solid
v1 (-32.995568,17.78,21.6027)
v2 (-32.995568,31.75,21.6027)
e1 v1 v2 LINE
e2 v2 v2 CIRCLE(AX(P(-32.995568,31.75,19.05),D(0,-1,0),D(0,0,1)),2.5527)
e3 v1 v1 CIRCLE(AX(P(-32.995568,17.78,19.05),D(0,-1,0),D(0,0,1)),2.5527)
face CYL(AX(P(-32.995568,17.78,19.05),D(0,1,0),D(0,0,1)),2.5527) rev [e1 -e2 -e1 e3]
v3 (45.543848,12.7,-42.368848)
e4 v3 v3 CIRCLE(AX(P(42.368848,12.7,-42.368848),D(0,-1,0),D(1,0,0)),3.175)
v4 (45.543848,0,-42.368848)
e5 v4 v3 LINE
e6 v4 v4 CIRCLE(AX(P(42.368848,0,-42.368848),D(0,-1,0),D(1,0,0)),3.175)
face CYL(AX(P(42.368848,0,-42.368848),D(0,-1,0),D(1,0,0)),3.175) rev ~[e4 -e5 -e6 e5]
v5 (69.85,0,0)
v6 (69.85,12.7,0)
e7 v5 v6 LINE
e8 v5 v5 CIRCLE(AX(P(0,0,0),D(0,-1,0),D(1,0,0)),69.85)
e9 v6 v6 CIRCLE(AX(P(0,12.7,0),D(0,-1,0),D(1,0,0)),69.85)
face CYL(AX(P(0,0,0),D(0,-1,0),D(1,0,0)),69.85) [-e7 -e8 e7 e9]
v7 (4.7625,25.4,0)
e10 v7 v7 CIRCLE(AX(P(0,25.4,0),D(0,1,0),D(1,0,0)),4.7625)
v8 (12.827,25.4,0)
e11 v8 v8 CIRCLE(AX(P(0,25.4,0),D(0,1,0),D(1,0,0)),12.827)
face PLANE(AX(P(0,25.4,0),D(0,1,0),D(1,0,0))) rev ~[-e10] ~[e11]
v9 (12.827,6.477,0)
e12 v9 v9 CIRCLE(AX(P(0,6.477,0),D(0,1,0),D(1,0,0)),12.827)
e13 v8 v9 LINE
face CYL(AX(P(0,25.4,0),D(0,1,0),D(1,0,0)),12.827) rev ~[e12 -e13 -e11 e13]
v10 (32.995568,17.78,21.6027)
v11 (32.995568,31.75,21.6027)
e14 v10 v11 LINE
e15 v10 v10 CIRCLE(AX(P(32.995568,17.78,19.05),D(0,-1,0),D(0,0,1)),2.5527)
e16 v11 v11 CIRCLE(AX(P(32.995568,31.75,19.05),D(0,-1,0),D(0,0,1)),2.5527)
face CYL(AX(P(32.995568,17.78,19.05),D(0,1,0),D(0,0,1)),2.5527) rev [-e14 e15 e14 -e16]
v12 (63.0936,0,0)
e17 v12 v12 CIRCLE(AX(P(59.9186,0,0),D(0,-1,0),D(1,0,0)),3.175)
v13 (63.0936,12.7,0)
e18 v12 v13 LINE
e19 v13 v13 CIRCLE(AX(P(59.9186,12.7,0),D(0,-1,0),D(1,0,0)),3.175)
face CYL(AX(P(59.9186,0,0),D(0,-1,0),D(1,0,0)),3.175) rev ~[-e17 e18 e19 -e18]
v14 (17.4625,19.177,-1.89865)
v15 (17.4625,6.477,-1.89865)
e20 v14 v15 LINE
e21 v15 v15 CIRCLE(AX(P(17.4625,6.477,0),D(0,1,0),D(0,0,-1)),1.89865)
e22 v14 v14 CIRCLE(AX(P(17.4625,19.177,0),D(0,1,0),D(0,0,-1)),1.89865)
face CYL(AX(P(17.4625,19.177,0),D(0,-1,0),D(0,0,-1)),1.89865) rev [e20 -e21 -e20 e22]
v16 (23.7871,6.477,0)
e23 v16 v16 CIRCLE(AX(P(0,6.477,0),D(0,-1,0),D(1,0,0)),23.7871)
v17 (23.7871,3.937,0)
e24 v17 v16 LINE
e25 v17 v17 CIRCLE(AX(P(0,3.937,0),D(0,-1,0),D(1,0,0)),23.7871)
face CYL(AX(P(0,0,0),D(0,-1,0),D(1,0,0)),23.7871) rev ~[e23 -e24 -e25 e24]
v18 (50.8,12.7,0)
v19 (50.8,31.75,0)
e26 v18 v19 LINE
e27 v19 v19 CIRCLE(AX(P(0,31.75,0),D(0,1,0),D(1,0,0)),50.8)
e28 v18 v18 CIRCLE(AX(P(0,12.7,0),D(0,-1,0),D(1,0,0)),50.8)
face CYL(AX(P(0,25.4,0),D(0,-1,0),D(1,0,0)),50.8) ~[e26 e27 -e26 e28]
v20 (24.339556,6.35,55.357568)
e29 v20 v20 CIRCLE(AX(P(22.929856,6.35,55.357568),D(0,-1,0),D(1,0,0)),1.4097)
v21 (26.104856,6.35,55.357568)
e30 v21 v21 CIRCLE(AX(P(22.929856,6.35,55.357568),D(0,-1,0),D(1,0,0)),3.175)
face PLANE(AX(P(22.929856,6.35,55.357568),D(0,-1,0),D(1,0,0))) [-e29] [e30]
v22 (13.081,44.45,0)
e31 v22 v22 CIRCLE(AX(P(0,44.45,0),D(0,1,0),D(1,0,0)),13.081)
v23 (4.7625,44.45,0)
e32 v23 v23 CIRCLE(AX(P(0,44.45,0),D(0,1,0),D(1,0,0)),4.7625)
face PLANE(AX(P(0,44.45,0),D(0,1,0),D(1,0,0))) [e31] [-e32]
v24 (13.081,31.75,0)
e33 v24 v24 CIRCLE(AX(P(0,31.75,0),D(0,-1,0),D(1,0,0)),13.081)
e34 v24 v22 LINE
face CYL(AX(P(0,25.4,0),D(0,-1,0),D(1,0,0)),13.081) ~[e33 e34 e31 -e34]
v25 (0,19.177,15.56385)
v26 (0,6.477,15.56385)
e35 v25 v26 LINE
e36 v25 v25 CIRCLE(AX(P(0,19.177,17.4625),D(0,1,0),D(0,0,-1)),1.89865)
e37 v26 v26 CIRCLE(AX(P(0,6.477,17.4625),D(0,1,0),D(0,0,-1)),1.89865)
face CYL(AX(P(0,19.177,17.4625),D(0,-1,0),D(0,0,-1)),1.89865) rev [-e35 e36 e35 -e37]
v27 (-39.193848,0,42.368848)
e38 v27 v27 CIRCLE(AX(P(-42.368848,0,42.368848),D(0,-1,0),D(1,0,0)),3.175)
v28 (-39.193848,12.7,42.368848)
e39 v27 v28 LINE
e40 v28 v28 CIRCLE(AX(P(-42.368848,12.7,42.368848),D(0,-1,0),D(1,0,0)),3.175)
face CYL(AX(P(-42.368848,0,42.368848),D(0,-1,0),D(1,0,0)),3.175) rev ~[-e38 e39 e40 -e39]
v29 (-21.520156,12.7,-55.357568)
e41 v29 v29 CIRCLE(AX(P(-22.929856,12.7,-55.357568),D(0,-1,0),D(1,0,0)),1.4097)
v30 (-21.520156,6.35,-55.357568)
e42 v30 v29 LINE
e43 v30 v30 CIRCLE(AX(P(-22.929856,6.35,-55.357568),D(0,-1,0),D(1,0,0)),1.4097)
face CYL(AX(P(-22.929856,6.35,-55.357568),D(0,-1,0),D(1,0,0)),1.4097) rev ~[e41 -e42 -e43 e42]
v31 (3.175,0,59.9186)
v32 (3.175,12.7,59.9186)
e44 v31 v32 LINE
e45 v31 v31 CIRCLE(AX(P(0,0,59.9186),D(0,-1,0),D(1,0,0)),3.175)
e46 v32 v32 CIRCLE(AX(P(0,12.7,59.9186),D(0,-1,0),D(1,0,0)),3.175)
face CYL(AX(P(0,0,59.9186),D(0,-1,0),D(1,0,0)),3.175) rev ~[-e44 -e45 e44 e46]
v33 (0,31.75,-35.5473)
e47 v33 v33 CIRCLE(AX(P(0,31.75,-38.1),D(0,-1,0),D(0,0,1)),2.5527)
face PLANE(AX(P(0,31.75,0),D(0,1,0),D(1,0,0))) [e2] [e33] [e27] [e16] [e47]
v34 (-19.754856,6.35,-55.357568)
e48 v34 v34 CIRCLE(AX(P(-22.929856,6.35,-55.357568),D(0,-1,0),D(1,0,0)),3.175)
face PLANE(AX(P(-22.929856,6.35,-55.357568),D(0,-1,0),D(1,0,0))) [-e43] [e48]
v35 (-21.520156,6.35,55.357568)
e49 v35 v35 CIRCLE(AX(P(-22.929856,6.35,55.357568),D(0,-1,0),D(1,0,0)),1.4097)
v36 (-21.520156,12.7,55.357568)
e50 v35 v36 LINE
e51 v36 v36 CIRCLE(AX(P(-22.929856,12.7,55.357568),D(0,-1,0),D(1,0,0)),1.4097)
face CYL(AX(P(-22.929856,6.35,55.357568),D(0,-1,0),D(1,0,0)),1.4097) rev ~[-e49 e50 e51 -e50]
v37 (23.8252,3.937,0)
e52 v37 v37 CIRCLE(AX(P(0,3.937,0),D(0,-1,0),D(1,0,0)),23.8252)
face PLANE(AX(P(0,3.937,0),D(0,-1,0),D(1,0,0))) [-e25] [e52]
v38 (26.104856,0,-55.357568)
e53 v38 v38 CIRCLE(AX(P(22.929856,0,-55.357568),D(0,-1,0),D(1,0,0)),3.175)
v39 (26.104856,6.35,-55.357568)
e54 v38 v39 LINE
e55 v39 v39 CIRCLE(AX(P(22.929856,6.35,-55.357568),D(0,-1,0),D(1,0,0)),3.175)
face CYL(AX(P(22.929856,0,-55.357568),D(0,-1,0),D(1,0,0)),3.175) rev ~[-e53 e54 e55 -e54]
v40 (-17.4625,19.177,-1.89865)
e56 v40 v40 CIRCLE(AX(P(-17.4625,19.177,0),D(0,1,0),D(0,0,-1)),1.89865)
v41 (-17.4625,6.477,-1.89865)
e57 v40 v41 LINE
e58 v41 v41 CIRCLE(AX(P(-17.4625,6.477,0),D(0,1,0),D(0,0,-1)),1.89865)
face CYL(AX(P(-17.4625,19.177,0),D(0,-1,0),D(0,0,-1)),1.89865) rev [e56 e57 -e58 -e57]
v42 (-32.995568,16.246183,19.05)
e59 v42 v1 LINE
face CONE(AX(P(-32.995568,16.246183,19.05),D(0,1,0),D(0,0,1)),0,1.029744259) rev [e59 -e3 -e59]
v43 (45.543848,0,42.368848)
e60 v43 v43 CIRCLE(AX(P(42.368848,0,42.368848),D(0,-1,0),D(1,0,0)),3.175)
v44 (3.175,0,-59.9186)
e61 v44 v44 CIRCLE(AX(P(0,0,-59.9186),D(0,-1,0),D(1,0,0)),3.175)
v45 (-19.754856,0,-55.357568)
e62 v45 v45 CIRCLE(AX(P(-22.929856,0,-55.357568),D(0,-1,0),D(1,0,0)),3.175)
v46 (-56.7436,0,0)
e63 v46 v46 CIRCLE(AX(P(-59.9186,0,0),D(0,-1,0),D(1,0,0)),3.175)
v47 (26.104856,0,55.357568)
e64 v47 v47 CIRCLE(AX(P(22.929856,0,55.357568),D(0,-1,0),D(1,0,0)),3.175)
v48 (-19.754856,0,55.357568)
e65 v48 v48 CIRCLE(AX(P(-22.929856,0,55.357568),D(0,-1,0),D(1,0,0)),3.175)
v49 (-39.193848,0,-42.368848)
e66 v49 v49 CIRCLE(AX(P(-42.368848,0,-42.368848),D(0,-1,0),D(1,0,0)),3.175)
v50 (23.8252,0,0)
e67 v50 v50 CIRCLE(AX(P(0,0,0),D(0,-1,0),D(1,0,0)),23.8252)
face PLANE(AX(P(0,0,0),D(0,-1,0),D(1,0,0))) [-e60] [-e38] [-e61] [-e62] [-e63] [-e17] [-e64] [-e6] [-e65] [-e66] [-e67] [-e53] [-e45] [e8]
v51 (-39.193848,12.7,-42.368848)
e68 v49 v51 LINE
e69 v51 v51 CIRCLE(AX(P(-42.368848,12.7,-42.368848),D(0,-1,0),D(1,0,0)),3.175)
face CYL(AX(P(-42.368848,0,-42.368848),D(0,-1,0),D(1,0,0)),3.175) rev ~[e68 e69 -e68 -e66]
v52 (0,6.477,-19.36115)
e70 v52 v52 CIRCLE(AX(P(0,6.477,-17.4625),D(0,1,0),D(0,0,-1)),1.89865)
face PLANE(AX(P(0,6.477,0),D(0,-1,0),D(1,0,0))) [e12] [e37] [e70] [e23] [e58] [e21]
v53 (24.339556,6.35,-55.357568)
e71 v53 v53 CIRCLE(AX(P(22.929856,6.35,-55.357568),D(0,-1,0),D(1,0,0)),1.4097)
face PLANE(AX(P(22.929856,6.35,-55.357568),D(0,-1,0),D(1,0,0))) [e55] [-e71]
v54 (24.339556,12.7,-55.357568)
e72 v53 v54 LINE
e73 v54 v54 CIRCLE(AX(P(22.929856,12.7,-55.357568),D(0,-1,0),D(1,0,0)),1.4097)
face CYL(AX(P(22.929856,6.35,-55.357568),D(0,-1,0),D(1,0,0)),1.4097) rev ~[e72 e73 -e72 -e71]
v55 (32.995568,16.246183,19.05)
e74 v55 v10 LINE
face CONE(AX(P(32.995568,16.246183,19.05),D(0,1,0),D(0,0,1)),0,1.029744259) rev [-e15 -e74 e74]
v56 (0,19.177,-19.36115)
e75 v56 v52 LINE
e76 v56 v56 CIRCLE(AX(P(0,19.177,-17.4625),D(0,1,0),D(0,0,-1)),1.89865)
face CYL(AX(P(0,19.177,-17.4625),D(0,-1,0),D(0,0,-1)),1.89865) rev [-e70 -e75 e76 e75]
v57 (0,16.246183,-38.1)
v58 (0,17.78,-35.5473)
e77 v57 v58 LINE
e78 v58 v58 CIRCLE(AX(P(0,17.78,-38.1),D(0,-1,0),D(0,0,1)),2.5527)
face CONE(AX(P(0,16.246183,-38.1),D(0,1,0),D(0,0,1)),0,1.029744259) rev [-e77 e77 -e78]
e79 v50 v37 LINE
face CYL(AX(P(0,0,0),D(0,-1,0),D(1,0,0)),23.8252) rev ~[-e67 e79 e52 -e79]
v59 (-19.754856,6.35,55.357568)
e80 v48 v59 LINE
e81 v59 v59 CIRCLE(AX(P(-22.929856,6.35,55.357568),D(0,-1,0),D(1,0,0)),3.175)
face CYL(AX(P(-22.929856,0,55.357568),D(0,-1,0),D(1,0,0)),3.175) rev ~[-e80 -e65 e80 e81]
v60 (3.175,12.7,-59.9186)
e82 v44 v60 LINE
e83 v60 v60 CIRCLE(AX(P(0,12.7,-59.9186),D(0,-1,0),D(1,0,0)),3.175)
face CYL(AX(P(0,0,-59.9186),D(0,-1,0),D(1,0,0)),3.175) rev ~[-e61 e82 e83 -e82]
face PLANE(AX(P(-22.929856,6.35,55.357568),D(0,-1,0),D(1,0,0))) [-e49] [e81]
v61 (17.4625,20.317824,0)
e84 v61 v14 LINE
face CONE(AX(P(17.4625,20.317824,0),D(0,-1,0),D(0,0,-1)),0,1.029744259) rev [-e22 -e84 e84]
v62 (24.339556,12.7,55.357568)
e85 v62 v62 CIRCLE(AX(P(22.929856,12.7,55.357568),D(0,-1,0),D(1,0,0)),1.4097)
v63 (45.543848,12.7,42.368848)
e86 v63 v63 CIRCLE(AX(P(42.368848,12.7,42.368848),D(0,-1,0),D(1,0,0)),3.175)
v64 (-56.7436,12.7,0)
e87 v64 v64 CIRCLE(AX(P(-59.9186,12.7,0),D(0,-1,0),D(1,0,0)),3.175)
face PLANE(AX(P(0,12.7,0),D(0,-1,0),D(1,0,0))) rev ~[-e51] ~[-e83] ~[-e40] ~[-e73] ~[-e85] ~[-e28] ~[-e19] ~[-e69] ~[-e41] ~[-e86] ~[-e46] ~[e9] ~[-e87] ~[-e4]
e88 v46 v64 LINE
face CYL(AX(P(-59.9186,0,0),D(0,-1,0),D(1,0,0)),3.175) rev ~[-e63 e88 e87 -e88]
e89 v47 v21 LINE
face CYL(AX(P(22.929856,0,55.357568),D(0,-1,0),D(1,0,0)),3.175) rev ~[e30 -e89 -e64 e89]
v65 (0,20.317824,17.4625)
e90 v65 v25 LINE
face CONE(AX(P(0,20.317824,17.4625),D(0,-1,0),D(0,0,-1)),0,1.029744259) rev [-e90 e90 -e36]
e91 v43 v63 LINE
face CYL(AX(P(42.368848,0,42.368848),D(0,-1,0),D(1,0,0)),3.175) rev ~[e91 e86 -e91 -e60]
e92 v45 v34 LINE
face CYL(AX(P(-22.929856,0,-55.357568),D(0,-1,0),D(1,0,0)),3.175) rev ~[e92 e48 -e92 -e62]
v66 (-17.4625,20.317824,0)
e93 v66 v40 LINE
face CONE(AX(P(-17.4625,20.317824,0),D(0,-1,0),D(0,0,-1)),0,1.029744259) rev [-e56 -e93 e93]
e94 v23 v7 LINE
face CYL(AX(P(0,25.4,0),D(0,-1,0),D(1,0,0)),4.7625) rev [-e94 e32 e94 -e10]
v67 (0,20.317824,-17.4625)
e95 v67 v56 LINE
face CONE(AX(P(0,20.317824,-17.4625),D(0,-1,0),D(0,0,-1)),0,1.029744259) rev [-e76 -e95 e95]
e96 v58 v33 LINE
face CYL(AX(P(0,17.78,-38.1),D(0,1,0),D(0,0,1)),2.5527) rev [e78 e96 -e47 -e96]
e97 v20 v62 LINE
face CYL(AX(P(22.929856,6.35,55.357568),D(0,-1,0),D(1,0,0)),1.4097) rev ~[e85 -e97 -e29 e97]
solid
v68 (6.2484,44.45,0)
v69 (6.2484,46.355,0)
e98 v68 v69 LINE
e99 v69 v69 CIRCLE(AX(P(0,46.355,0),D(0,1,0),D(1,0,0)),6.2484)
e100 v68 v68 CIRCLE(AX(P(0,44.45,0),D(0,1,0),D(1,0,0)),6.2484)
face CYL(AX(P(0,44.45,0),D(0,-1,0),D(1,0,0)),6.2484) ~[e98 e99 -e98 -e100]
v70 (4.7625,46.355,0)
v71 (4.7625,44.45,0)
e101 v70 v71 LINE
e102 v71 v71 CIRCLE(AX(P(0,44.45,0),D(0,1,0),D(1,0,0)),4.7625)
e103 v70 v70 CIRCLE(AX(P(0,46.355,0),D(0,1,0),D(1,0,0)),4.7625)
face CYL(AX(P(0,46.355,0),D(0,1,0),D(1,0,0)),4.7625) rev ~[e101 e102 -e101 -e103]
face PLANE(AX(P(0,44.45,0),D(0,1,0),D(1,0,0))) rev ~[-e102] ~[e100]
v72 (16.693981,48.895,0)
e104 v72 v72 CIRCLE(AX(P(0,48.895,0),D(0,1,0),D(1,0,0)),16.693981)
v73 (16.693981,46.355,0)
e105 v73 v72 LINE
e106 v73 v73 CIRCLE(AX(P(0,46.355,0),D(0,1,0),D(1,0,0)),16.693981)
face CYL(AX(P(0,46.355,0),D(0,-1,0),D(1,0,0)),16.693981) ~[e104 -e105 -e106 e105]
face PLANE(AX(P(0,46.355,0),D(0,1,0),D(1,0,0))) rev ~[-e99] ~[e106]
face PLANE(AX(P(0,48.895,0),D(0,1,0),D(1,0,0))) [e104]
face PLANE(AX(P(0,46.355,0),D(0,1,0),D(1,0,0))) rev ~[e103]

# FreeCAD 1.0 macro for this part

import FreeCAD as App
import Part
import Sketcher
from FreeCAD import Vector
Q = App.Units.Quantity

doc = App.newDocument("Part")
body = doc.addObject("PartDesign::Body", "Body")

# Sketch on XZ plane
sketch1 = doc.addObject("Sketcher::SketchObject", "Sketch")
body.addObject(sketch1)
sketch1.AttachmentSupport = (doc.XZ_Plane, [""])
sketch1.MapMode = "FlatFace"
sketch1.addGeometry(Part.Circle(Vector(0, 0, 0), Vector(0, 0, 1), 51), False)
sketch1.addConstraint(Sketcher.Constraint("Coincident", 0, 3, -1, 1))
sketch1.addConstraint(Sketcher.Constraint("Diameter", 0, Q("4 in")))
pad1 = doc.addObject("PartDesign::Pad", "Pad")
body.addObject(pad1)
pad1.Profile = sketch1
pad1.Length = Q("1 in")
pad1.Reversed = True

# Sketch on XZ plane
sketch2 = doc.addObject("Sketcher::SketchObject", "Sketch001")
body.addObject(sketch2)
sketch2.AttachmentSupport = (doc.XZ_Plane, [""])
sketch2.MapMode = "FlatFace"
sketch2.addGeometry(Part.Circle(Vector(0, 0, 0), Vector(0, 0, 1), 70), False)
sketch2.addGeometry(Part.Circle(Vector(0, 0, 0), Vector(0, 0, 1), 51), False)
sketch2.addConstraint(Sketcher.Constraint("Coincident", 0, 3, -1, 1))
sketch2.addConstraint(Sketcher.Constraint("Coincident", 1, 3, -1, 1))
sketch2.addConstraint(Sketcher.Constraint("Diameter", 1, Q("4 in")))
sketch2.addConstraint(Sketcher.Constraint("Diameter", 0, Q("5.5 in")))
pad2 = doc.addObject("PartDesign::Pad", "Pad001")
body.addObject(pad2)
pad2.Profile = sketch2
pad2.Length = Q("0.5 in")
pad2.Reversed = True

# Sketch on XZ plane
sketch3 = doc.addObject("Sketcher::SketchObject", "Sketch002")
body.addObject(sketch3)
sketch3.AttachmentSupport = (doc.XZ_Plane, [""])
sketch3.MapMode = "FlatFace"
sketch3.addGeometry(Part.Circle(Vector(0, -59.9, 0), Vector(0, 0, 1), 3.2), False)
sketch3.addConstraint(Sketcher.Constraint("PointOnObject", 0, 3, -2))
sketch3.addConstraint(Sketcher.Constraint("Diameter", 0, Q("0.25 in")))
sketch3.addConstraint(Sketcher.Constraint("DistanceY", 0, 3, -1, 1, Q("2.359 in")))
pocket1 = doc.addObject("PartDesign::Pocket", "Pocket")
body.addObject(pocket1)
pocket1.Profile = sketch3
pocket1.Type = "UpToFirst"

# Sketch on XZ plane
sketch4 = doc.addObject("Sketcher::SketchObject", "Sketch003")
body.addObject(sketch4)
sketch4.AttachmentSupport = (doc.XZ_Plane, [""])
sketch4.MapMode = "FlatFace"
sketch4.addGeometry(Part.Circle(Vector(-42.4, -42.4, 0), Vector(0, 0, 1), 3.2), False)
sketch4.addConstraint(Sketcher.Constraint("Diameter", 0, Q("0.25 in")))
sketch4.addConstraint(Sketcher.Constraint("DistanceX", 0, 3, -1, 1, 42.368848))
sketch4.addConstraint(Sketcher.Constraint("DistanceY", 0, 3, -1, 1, 42.368848))
pocket2 = doc.addObject("PartDesign::Pocket", "Pocket001")
body.addObject(pocket2)
pocket2.Profile = sketch4
pocket2.Type = "UpToFirst"

# Sketch on XZ plane
sketch5 = doc.addObject("Sketcher::SketchObject", "Sketch004")
body.addObject(sketch5)
sketch5.AttachmentSupport = (doc.XZ_Plane, [""])
sketch5.MapMode = "FlatFace"
sketch5.addGeometry(Part.Circle(Vector(-59.9, 0, 0), Vector(0, 0, 1), 3.2), False)
sketch5.addConstraint(Sketcher.Constraint("PointOnObject", 0, 3, -1))
sketch5.addConstraint(Sketcher.Constraint("Diameter", 0, Q("0.25 in")))
sketch5.addConstraint(Sketcher.Constraint("DistanceX", 0, 3, -1, 1, Q("2.359 in")))
pocket3 = doc.addObject("PartDesign::Pocket", "Pocket002")
body.addObject(pocket3)
pocket3.Profile = sketch5
pocket3.Type = "UpToFirst"

# Sketch on XZ plane
sketch6 = doc.addObject("Sketcher::SketchObject", "Sketch005")
body.addObject(sketch6)
sketch6.AttachmentSupport = (doc.XZ_Plane, [""])
sketch6.MapMode = "FlatFace"
sketch6.addGeometry(Part.Circle(Vector(-42.4, 42.4, 0), Vector(0, 0, 1), 3.2), False)
sketch6.addConstraint(Sketcher.Constraint("Diameter", 0, Q("0.25 in")))
sketch6.addConstraint(Sketcher.Constraint("DistanceX", 0, 3, -1, 1, 42.368848))
sketch6.addConstraint(Sketcher.Constraint("DistanceY", -1, 1, 0, 3, 42.368848))
pocket4 = doc.addObject("PartDesign::Pocket", "Pocket003")
body.addObject(pocket4)
pocket4.Profile = sketch6
pocket4.Type = "UpToFirst"

# Sketch on XZ plane
sketch7 = doc.addObject("Sketcher::SketchObject", "Sketch006")
body.addObject(sketch7)
sketch7.AttachmentSupport = (doc.XZ_Plane, [""])
sketch7.MapMode = "FlatFace"
sketch7.addGeometry(Part.Circle(Vector(0, 59.9, 0), Vector(0, 0, 1), 3.2), False)
sketch7.addConstraint(Sketcher.Constraint("PointOnObject", 0, 3, -2))
sketch7.addConstraint(Sketcher.Constraint("Diameter", 0, Q("0.25 in")))
sketch7.addConstraint(Sketcher.Constraint("DistanceY", -1, 1, 0, 3, Q("2.359 in")))
pocket5 = doc.addObject("PartDesign::Pocket", "Pocket004")
body.addObject(pocket5)
pocket5.Profile = sketch7
pocket5.Type = "UpToFirst"

# Sketch on XZ plane
sketch8 = doc.addObject("Sketcher::SketchObject", "Sketch007")
body.addObject(sketch8)
sketch8.AttachmentSupport = (doc.XZ_Plane, [""])
sketch8.MapMode = "FlatFace"
sketch8.addGeometry(Part.Circle(Vector(42.4, 42.4, 0), Vector(0, 0, 1), 3.2), False)
sketch8.addConstraint(Sketcher.Constraint("Diameter", 0, Q("0.25 in")))
sketch8.addConstraint(Sketcher.Constraint("DistanceX", -1, 1, 0, 3, 42.368848))
sketch8.addConstraint(Sketcher.Constraint("DistanceY", -1, 1, 0, 3, 42.368848))
pocket6 = doc.addObject("PartDesign::Pocket", "Pocket005")
body.addObject(pocket6)
pocket6.Profile = sketch8
pocket6.Type = "UpToFirst"

# Sketch on XZ plane
sketch9 = doc.addObject("Sketcher::SketchObject", "Sketch008")
body.addObject(sketch9)
sketch9.AttachmentSupport = (doc.XZ_Plane, [""])
sketch9.MapMode = "FlatFace"
sketch9.addGeometry(Part.Circle(Vector(59.9, 0, 0), Vector(0, 0, 1), 3.2), False)
sketch9.addConstraint(Sketcher.Constraint("PointOnObject", 0, 3, -1))
sketch9.addConstraint(Sketcher.Constraint("Diameter", 0, Q("0.25 in")))
sketch9.addConstraint(Sketcher.Constraint("DistanceX", -1, 1, 0, 3, Q("2.359 in")))
pocket7 = doc.addObject("PartDesign::Pocket", "Pocket006")
body.addObject(pocket7)
pocket7.Profile = sketch9
pocket7.Type = "UpToFirst"

# Sketch on XZ plane
sketch10 = doc.addObject("Sketcher::SketchObject", "Sketch009")
body.addObject(sketch10)
sketch10.AttachmentSupport = (doc.XZ_Plane, [""])
sketch10.MapMode = "FlatFace"
sketch10.addGeometry(Part.Circle(Vector(42.4, -42.4, 0), Vector(0, 0, 1), 3.2), False)
sketch10.addConstraint(Sketcher.Constraint("Diameter", 0, Q("0.25 in")))
sketch10.addConstraint(Sketcher.Constraint("DistanceX", -1, 1, 0, 3, 42.368848))
sketch10.addConstraint(Sketcher.Constraint("DistanceY", 0, 3, -1, 1, 42.368848))
pocket8 = doc.addObject("PartDesign::Pocket", "Pocket007")
body.addObject(pocket8)
pocket8.Profile = sketch10
pocket8.Type = "UpToFirst"

# Sketch on XZ plane
sketch11 = doc.addObject("Sketcher::SketchObject", "Sketch010")
body.addObject(sketch11)
sketch11.AttachmentSupport = (doc.XZ_Plane, [""])
sketch11.MapMode = "FlatFace"
sketch11.AttachmentOffset = App.Placement(Vector(0, 0, -1 * 25.4), App.Rotation())
sketch11.addGeometry(Part.Circle(Vector(0, 0, 0), Vector(0, 0, 1), 13), False)
sketch11.addConstraint(Sketcher.Constraint("Coincident", 0, 3, -1, 1))
sketch11.addConstraint(Sketcher.Constraint("Diameter", 0, Q("1.01 in")))
pocket9 = doc.addObject("PartDesign::Pocket", "Pocket008")
body.addObject(pocket9)
pocket9.Profile = sketch11
pocket9.Length = Q("0.75 in")
pocket9.Reversed = True

# Sketch on XZ plane
sketch12 = doc.addObject("Sketcher::SketchObject", "Sketch011")
body.addObject(sketch12)
sketch12.AttachmentSupport = (doc.XZ_Plane, [""])
sketch12.MapMode = "FlatFace"
sketch12.AttachmentOffset = App.Placement(Vector(0, 0, -0.25 * 25.4), App.Rotation())
sketch12.addGeometry(Part.Circle(Vector(0, 0, 0), Vector(0, 0, 1), 1.6), False)
sketch12.addConstraint(Sketcher.Constraint("Coincident", 0, 3, -1, 1))
sketch12.addConstraint(Sketcher.Constraint("Diameter", 0, Q("0.125 in")))
pocket10 = doc.addObject("PartDesign::Pocket", "Pocket009")
body.addObject(pocket10)
pocket10.Profile = sketch12
pocket10.Type = "UpToFirst"
pocket10.Reversed = True

# Sketch on XZ plane
sketch13 = doc.addObject("Sketcher::SketchObject", "Sketch012")
body.addObject(sketch13)
sketch13.AttachmentSupport = (doc.XZ_Plane, [""])
sketch13.MapMode = "FlatFace"
sketch13.AttachmentOffset = App.Placement(Vector(0, 0, -1 * 25.4), App.Rotation())
sketch13.addGeometry(Part.Circle(Vector(0, 0, 0), Vector(0, 0, 1), 13.1), False)
sketch13.addGeometry(Part.Circle(Vector(0, 0, 0), Vector(0, 0, 1), 4.8), False)
sketch13.addConstraint(Sketcher.Constraint("Coincident", 0, 3, -1, 1))
sketch13.addConstraint(Sketcher.Constraint("Coincident", 1, 3, -1, 1))
sketch13.addConstraint(Sketcher.Constraint("Diameter", 0, Q("1.03 in")))
sketch13.addConstraint(Sketcher.Constraint("Diameter", 1, Q("0.375 in")))
pad3 = doc.addObject("PartDesign::Pad", "Pad002")
body.addObject(pad3)
pad3.Profile = sketch13
pad3.Length = Q("0.75 in")
pad3.Reversed = True

# Sketch on XZ plane
sketch14 = doc.addObject("Sketcher::SketchObject", "Sketch013")
body.addObject(sketch14)
sketch14.AttachmentSupport = (doc.XZ_Plane, [""])
sketch14.MapMode = "FlatFace"
sketch14.AttachmentOffset = App.Placement(Vector(0, 0, -1 * 25.4), App.Rotation())
sketch14.addGeometry(Part.Circle(Vector(0, 0, 0), Vector(0, 0, 1), 51), False)
sketch14.addConstraint(Sketcher.Constraint("Coincident", 0, 3, -1, 1))
sketch14.addConstraint(Sketcher.Constraint("Diameter", 0, Q("4 in")))
pad4 = doc.addObject("PartDesign::Pad", "Pad003")
body.addObject(pad4)
pad4.Profile = sketch14
pad4.Length = Q("0.25 in")
pad4.Reversed = True

# Sketch on XZ plane
sketch15 = doc.addObject("Sketcher::SketchObject", "Sketch014")
body.addObject(sketch15)
sketch15.AttachmentSupport = (doc.XZ_Plane, [""])
sketch15.MapMode = "FlatFace"
sketch15.AttachmentOffset = App.Placement(Vector(0, 0, -1.25 * 25.4), App.Rotation())
sketch15.addGeometry(Part.Circle(Vector(0, 0, 0), Vector(0, 0, 1), 4.8), False)
sketch15.addConstraint(Sketcher.Constraint("Coincident", 0, 3, -1, 1))
sketch15.addConstraint(Sketcher.Constraint("Diameter", 0, Q("0.375 in")))
pocket11 = doc.addObject("PartDesign::Pocket", "Pocket010")
body.addObject(pocket11)
pocket11.Profile = sketch15
pocket11.Length = Q("0.25 in")
pocket11.Reversed = True

# Sketch on XZ plane
sketch16 = doc.addObject("Sketcher::SketchObject", "Sketch015")
body.addObject(sketch16)
sketch16.AttachmentSupport = (doc.XZ_Plane, [""])
sketch16.MapMode = "FlatFace"
sketch16.addGeometry(Part.Circle(Vector(0, 0, 0), Vector(0, 0, 1), 24), False)
sketch16.addConstraint(Sketcher.Constraint("Coincident", 0, 3, -1, 1))
sketch16.addConstraint(Sketcher.Constraint("Diameter", 0, Q("1.873 in")))
pocket12 = doc.addObject("PartDesign::Pocket", "Pocket011")
body.addObject(pocket12)
pocket12.Profile = sketch16
pocket12.Length = Q("0.255 in")

# Sketch on YZ plane
sketch17 = doc.addObject("Sketcher::SketchObject", "Sketch016")
body.addObject(sketch17)
sketch17.AttachmentSupport = (doc.YZ_Plane, [""])
sketch17.MapMode = "FlatFace"
sketch17.addGeometry(Part.LineSegment(Vector(20.3, 17.5, 0), Vector(6.5, 17.5, 0)), False)
sketch17.addGeometry(Part.LineSegment(Vector(6.5, 17.5, 0), Vector(6.5, 15.6, 0)), False)
sketch17.addGeometry(Part.LineSegment(Vector(6.5, 15.6, 0), Vector(19.2, 15.6, 0)), False)
sketch17.addGeometry(Part.LineSegment(Vector(19.2, 15.6, 0), Vector(20.3, 17.5, 0)), False)
sketch17.addGeometry(Part.LineSegment(Vector(6.5, 17.5, 0), Vector(20.3, 17.5, 0)), True)  # axis
sketch17.addConstraint(Sketcher.Constraint("Coincident", 0, 2, 1, 1))
sketch17.addConstraint(Sketcher.Constraint("Coincident", 1, 2, 2, 1))
sketch17.addConstraint(Sketcher.Constraint("Coincident", 2, 2, 3, 1))
sketch17.addConstraint(Sketcher.Constraint("Coincident", 3, 2, 0, 1))
sketch17.addConstraint(Sketcher.Constraint("Horizontal", 0))
sketch17.addConstraint(Sketcher.Constraint("Vertical", 1))
sketch17.addConstraint(Sketcher.Constraint("Horizontal", 2))
sketch17.addConstraint(Sketcher.Constraint("Horizontal", 4))
sketch17.addConstraint(Sketcher.Constraint("Coincident", 4, 1, 0, 2))
sketch17.addConstraint(Sketcher.Constraint("Equal", 0, 4))
sketch17.addConstraint(Sketcher.Constraint("DistanceX", 2, 1, 2, 2, Q("0.5 in")))
sketch17.addConstraint(Sketcher.Constraint("Angle", 3, Q("59 deg")))
sketch17.addConstraint(Sketcher.Constraint("DistanceX", -1, 1, 0, 2, Q("0.255 in")))
sketch17.addConstraint(Sketcher.Constraint("DistanceY", -1, 1, 0, 2, Q("0.6875 in")))
sketch17.addConstraint(Sketcher.Constraint("DistanceY", 1, 2, 1, 1, 1.89865))
groove = doc.addObject("PartDesign::Groove", "Groove")
body.addObject(groove)
groove.Profile = sketch17
groove.ReferenceAxis = (sketch17, ["Axis0"])
groove.Angle = 360
doc.recompute()

datumline = doc.addObject("PartDesign::Line", "DatumLine")
body.addObject(datumline)
datumline.Placement = App.Placement(Vector(0, 0, 0), App.Rotation(Vector(0, 0, 1), Vector(0.707106781, 0, -0.707106781)))
linearpattern = doc.addObject("PartDesign::LinearPattern", "LinearPattern")
body.addObject(linearpattern)
linearpattern.Originals = [groove]
linearpattern.Direction = (datumline, [""])
linearpattern.Mode = "offset"
linearpattern.Offset = 24.695704
linearpattern.Occurrences = 2
body.Tip = linearpattern
doc.recompute()

linearpattern2 = doc.addObject("PartDesign::LinearPattern", "LinearPattern001")
body.addObject(linearpattern2)
linearpattern2.Originals = [groove]
linearpattern2.Direction = (doc.Z_Axis, [""])
linearpattern2.Mode = "offset"
linearpattern2.Offset = Q("1.375 in")
linearpattern2.Occurrences = 2
linearpattern2.Reversed = True
body.Tip = linearpattern2
doc.recompute()

datumline2 = doc.addObject("PartDesign::Line", "DatumLine001")
body.addObject(datumline2)
datumline2.Placement = App.Placement(Vector(0, 0, 0), App.Rotation(Vector(0, 0, 1), Vector(-0.707106781, 0, -0.707106781)))
linearpattern3 = doc.addObject("PartDesign::LinearPattern", "LinearPattern002")
body.addObject(linearpattern3)
linearpattern3.Originals = [groove]
linearpattern3.Direction = (datumline2, [""])
linearpattern3.Mode = "offset"
linearpattern3.Offset = 24.695704
linearpattern3.Occurrences = 2
body.Tip = linearpattern3

# Sketch on XZ plane
sketch18 = doc.addObject("Sketcher::SketchObject", "Sketch017")
body.addObject(sketch18)
sketch18.AttachmentSupport = (doc.XZ_Plane, [""])
sketch18.MapMode = "FlatFace"
sketch18.addGeometry(Part.Circle(Vector(-22.9, 55.4, 0), Vector(0, 0, 1), 3.2), False)
sketch18.addGeometry(Part.Circle(Vector(22.9, 55.4, 0), Vector(0, 0, 1), 3.2), False)
sketch18.addGeometry(Part.Circle(Vector(-22.9, -55.4, 0), Vector(0, 0, 1), 3.2), False)
sketch18.addGeometry(Part.Circle(Vector(22.9, -55.4, 0), Vector(0, 0, 1), 3.2), False)
sketch18.addConstraint(Sketcher.Constraint("Equal", 0, 1))
sketch18.addConstraint(Sketcher.Constraint("Equal", 1, 2))
sketch18.addConstraint(Sketcher.Constraint("Equal", 2, 3))
sketch18.addConstraint(Sketcher.Constraint("Symmetric", 1, 3, 2, 3, -1, 1))
sketch18.addConstraint(Sketcher.Constraint("Symmetric", 0, 3, 3, 3, -1, 1))
sketch18.addConstraint(Sketcher.Constraint("Symmetric", 0, 3, 1, 3, -2))
sketch18.addConstraint(Sketcher.Constraint("Diameter", 0, Q("0.25 in")))
sketch18.addConstraint(Sketcher.Constraint("DistanceY", -1, 1, 0, 3, 55.357568))
sketch18.addConstraint(Sketcher.Constraint("DistanceX", 0, 3, 1, 3, 45.859711))
pocket13 = doc.addObject("PartDesign::Pocket", "Pocket012")
body.addObject(pocket13)
pocket13.Profile = sketch18
pocket13.Length = Q("0.25 in")

# Sketch on YZ plane
sketch19 = doc.addObject("Sketcher::SketchObject", "Sketch018")
body.addObject(sketch19)
sketch19.AttachmentSupport = (doc.YZ_Plane, [""])
sketch19.MapMode = "FlatFace"
sketch19.addGeometry(Part.LineSegment(Vector(16.2, -38.1, 0), Vector(31.8, -38.1, 0)), False)
sketch19.addGeometry(Part.LineSegment(Vector(31.8, -38.1, 0), Vector(31.8, -35.5, 0)), False)
sketch19.addGeometry(Part.LineSegment(Vector(31.8, -35.5, 0), Vector(17.8, -35.5, 0)), False)
sketch19.addGeometry(Part.LineSegment(Vector(17.8, -35.5, 0), Vector(16.2, -38.1, 0)), False)
sketch19.addGeometry(Part.LineSegment(Vector(31.8, -38.1, 0), Vector(16.2, -38.1, 0)), True)  # axis
sketch19.addConstraint(Sketcher.Constraint("Coincident", 0, 2, 1, 1))
sketch19.addConstraint(Sketcher.Constraint("Coincident", 1, 2, 2, 1))
sketch19.addConstraint(Sketcher.Constraint("Coincident", 2, 2, 3, 1))
sketch19.addConstraint(Sketcher.Constraint("Coincident", 3, 2, 0, 1))
sketch19.addConstraint(Sketcher.Constraint("Horizontal", 0))
sketch19.addConstraint(Sketcher.Constraint("Vertical", 1))
sketch19.addConstraint(Sketcher.Constraint("Horizontal", 2))
sketch19.addConstraint(Sketcher.Constraint("Horizontal", 4))
sketch19.addConstraint(Sketcher.Constraint("Coincident", 4, 1, 0, 2))
sketch19.addConstraint(Sketcher.Constraint("Equal", 0, 4))
sketch19.addConstraint(Sketcher.Constraint("Angle", 3, Q("-121 deg")))
sketch19.addConstraint(Sketcher.Constraint("DistanceX", 2, 2, 2, 1, Q("0.55 in")))
sketch19.addConstraint(Sketcher.Constraint("DistanceY", 0, 2, -1, 1, Q("1.5 in")))
sketch19.addConstraint(Sketcher.Constraint("DistanceX", -1, 1, 2, 2, Q("0.7 in")))
sketch19.addConstraint(Sketcher.Constraint("DistanceY", 1, 1, 1, 2, Q("0.1005 in")))
groove2 = doc.addObject("PartDesign::Groove", "Groove001")
body.addObject(groove2)
groove2.Profile = sketch19
groove2.ReferenceAxis = (sketch19, ["Axis0"])
groove2.Angle = 360
doc.recompute()

datumline3 = doc.addObject("PartDesign::Line", "DatumLine002")
body.addObject(datumline3)
datumline3.Placement = App.Placement(Vector(0, 0, 0), App.Rotation(Vector(0, 0, 1), Vector(0.5, 0, 0.866025404)))
linearpattern4 = doc.addObject("PartDesign::LinearPattern", "LinearPattern003")
body.addObject(linearpattern4)
linearpattern4.Originals = [groove2]
linearpattern4.Direction = (datumline3, [""])
linearpattern4.Mode = "offset"
linearpattern4.Offset = 65.991136
linearpattern4.Occurrences = 2
body.Tip = linearpattern4
doc.recompute()

datumline4 = doc.addObject("PartDesign::Line", "DatumLine003")
body.addObject(datumline4)
datumline4.Placement = App.Placement(Vector(0, 0, 0), App.Rotation(Vector(0, 0, 1), Vector(-0.5, 0, 0.866025404)))
linearpattern5 = doc.addObject("PartDesign::LinearPattern", "LinearPattern004")
body.addObject(linearpattern5)
linearpattern5.Originals = [groove2]
linearpattern5.Direction = (datumline4, [""])
linearpattern5.Mode = "offset"
linearpattern5.Offset = 65.991136
linearpattern5.Occurrences = 2
body.Tip = linearpattern5

# Sketch on XZ plane
sketch20 = doc.addObject("Sketcher::SketchObject", "Sketch019")
body.addObject(sketch20)
sketch20.AttachmentSupport = (doc.XZ_Plane, [""])
sketch20.MapMode = "FlatFace"
sketch20.addGeometry(Part.Circle(Vector(0, 0, 0), Vector(0, 0, 1), 24), False)
sketch20.addConstraint(Sketcher.Constraint("Coincident", 0, 3, -1, 1))
sketch20.addConstraint(Sketcher.Constraint("Diameter", 0, Q("1.876 in")))
pocket14 = doc.addObject("PartDesign::Pocket", "Pocket013")
body.addObject(pocket14)
pocket14.Profile = sketch20
pocket14.Length = Q("0.155 in")

# Sketch on XZ plane
sketch21 = doc.addObject("Sketcher::SketchObject", "Sketch020")
body.addObject(sketch21)
sketch21.AttachmentSupport = (doc.XZ_Plane, [""])
sketch21.MapMode = "FlatFace"
sketch21.AttachmentOffset = App.Placement(Vector(0, 0, -0.25 * 25.4), App.Rotation())
sketch21.addGeometry(Part.Circle(Vector(-22.9, 55.4, 0), Vector(0, 0, 1), 1.4), False)
sketch21.addGeometry(Part.Circle(Vector(22.9, 55.4, 0), Vector(0, 0, 1), 1.4), False)
sketch21.addGeometry(Part.Circle(Vector(-22.9, -55.4, 0), Vector(0, 0, 1), 1.4), False)
sketch21.addGeometry(Part.Circle(Vector(22.9, -55.4, 0), Vector(0, 0, 1), 1.4), False)
sketch21.addConstraint(Sketcher.Constraint("Equal", 0, 1))
sketch21.addConstraint(Sketcher.Constraint("Equal", 1, 2))
sketch21.addConstraint(Sketcher.Constraint("Equal", 2, 3))
sketch21.addConstraint(Sketcher.Constraint("Symmetric", 1, 3, 2, 3, -1, 1))
sketch21.addConstraint(Sketcher.Constraint("Symmetric", 0, 3, 3, 3, -1, 1))
sketch21.addConstraint(Sketcher.Constraint("Symmetric", 0, 3, 1, 3, -2))
sketch21.addConstraint(Sketcher.Constraint("Diameter", 0, Q("0.111 in")))
sketch21.addConstraint(Sketcher.Constraint("DistanceY", -1, 1, 0, 3, 55.357568))
sketch21.addConstraint(Sketcher.Constraint("DistanceX", 0, 3, 1, 3, 45.859711))
pocket15 = doc.addObject("PartDesign::Pocket", "Pocket014")
body.addObject(pocket15)
pocket15.Profile = sketch21
pocket15.Type = "ThroughAll"
body2 = doc.addObject("PartDesign::Body", "Body001")

# Sketch on XZ plane
sketch22 = doc.addObject("Sketcher::SketchObject", "Sketch021")
body2.addObject(sketch22)
sketch22.AttachmentSupport = (doc.getObject("XZ_Plane001"), [""])
sketch22.MapMode = "FlatFace"
sketch22.AttachmentOffset = App.Placement(Vector(0, 0, -1.75 * 25.4), App.Rotation())
sketch22.addGeometry(Part.Circle(Vector(0, 0, 0), Vector(0, 0, 1), 6), False)
sketch22.addConstraint(Sketcher.Constraint("Coincident", 0, 3, -1, 1))
sketch22.addConstraint(Sketcher.Constraint("Diameter", 0, Q("0.492 in")))
pad5 = doc.addObject("PartDesign::Pad", "Pad004")
body2.addObject(pad5)
pad5.Profile = sketch22
pad5.Length = Q("0.075 in")
pad5.Reversed = True

# Sketch on XZ plane
sketch23 = doc.addObject("Sketcher::SketchObject", "Sketch022")
body2.addObject(sketch23)
sketch23.AttachmentSupport = (doc.getObject("XZ_Plane001"), [""])
sketch23.MapMode = "FlatFace"
sketch23.AttachmentOffset = App.Placement(Vector(0, 0, -1.825 * 25.4), App.Rotation())
sketch23.addGeometry(Part.Circle(Vector(0, 0, 0), Vector(0, 0, 1), 4.8), False)
sketch23.addConstraint(Sketcher.Constraint("Coincident", 0, 3, -1, 1))
sketch23.addConstraint(Sketcher.Constraint("Diameter", 0, Q("0.375 in")))
pocket16 = doc.addObject("PartDesign::Pocket", "Pocket015")
body2.addObject(pocket16)
pocket16.Profile = sketch23
pocket16.Length = Q("0.25 in")
pocket16.Reversed = True

# Sketch on XZ plane
sketch24 = doc.addObject("Sketcher::SketchObject", "Sketch023")
body2.addObject(sketch24)
sketch24.AttachmentSupport = (doc.getObject("XZ_Plane001"), [""])
sketch24.MapMode = "FlatFace"
sketch24.AttachmentOffset = App.Placement(Vector(0, 0, -1.825 * 25.4), App.Rotation())
sketch24.addGeometry(Part.Circle(Vector(0, 0, 0), Vector(0, 0, 1), 17), False)
sketch24.addConstraint(Sketcher.Constraint("Coincident", 0, 3, -1, 1))
sketch24.addConstraint(Sketcher.Constraint("Diameter", 0, 33.387962))
pad6 = doc.addObject("PartDesign::Pad", "Pad005")
body2.addObject(pad6)
pad6.Profile = sketch24
pad6.Length = Q("0.1 in")
pad6.Reversed = True

doc.recompute()
